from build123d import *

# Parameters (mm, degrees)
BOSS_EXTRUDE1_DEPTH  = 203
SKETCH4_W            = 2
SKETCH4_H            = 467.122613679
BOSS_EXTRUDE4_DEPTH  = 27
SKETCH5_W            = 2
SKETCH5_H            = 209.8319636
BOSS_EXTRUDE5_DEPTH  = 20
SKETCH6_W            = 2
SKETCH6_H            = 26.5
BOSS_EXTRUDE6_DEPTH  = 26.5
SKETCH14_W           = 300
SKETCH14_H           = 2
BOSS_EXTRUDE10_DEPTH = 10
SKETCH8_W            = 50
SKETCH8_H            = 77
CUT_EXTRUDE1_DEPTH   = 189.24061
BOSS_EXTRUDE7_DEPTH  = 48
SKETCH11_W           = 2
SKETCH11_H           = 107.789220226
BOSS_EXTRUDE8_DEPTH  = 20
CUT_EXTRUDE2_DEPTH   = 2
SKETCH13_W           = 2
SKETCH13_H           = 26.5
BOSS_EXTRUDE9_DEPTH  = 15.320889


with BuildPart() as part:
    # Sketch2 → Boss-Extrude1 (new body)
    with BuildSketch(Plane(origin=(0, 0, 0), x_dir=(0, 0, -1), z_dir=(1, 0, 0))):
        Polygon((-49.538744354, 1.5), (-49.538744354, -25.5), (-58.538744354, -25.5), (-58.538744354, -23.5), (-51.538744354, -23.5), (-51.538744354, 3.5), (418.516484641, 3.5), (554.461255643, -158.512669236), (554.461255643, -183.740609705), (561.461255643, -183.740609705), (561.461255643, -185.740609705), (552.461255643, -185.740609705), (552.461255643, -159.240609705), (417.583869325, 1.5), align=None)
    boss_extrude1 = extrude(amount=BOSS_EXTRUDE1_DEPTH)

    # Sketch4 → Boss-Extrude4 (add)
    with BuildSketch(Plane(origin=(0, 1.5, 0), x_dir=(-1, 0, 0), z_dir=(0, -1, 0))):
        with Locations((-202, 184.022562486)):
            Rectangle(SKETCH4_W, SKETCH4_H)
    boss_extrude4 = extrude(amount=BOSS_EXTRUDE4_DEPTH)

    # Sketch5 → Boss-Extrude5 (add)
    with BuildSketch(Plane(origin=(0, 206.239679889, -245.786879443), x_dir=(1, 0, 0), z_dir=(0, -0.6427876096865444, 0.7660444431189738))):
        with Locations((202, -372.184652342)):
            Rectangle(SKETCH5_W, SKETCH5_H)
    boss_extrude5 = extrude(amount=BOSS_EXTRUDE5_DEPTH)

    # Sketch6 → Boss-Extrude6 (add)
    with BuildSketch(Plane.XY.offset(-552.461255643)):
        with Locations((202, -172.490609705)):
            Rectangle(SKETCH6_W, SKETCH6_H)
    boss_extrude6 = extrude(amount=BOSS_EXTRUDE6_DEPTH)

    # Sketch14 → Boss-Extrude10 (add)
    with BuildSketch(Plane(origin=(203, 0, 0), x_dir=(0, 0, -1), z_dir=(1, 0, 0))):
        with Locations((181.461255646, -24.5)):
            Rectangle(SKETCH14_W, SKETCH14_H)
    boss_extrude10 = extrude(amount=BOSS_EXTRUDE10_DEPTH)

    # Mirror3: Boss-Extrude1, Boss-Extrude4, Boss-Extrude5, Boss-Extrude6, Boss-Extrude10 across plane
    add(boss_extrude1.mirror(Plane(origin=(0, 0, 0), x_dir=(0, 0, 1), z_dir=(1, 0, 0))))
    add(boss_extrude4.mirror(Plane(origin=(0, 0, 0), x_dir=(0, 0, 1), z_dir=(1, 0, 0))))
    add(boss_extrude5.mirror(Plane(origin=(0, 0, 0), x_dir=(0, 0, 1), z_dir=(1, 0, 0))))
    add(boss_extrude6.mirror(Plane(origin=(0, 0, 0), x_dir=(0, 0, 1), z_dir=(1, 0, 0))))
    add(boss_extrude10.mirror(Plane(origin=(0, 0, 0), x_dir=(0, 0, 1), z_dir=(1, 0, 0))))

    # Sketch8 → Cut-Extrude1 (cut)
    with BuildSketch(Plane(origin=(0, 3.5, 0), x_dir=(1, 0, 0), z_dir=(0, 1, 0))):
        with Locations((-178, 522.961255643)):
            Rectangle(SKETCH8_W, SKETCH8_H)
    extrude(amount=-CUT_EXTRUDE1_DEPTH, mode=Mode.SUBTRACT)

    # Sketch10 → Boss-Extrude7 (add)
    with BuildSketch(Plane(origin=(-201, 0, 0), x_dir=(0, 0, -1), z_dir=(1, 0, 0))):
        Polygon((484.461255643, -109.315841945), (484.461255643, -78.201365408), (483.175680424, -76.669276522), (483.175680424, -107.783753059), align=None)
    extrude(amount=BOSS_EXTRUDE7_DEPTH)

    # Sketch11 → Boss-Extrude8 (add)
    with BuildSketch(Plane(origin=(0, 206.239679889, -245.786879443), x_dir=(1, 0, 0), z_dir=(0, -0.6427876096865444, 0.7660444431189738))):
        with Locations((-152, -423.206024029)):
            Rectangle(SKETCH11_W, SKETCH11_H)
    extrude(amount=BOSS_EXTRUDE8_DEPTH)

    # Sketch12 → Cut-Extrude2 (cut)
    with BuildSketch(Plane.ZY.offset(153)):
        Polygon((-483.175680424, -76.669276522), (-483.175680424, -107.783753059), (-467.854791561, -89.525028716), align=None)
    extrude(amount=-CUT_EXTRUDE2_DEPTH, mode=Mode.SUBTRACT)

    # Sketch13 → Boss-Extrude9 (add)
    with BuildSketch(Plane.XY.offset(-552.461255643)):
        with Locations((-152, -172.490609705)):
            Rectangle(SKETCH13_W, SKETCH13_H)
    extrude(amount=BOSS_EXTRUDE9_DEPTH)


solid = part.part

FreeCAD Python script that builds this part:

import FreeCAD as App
import Part
import Sketcher
from FreeCAD import Vector
Q = App.Units.Quantity

doc = App.newDocument("Part")
body = doc.addObject("PartDesign::Body", "Body")

# Sketch on YZ plane
sketch1 = doc.addObject("Sketcher::SketchObject", "Sketch")
body.addObject(sketch1)
sketch1.AttachmentSupport = (doc.YZ_Plane, [""])
sketch1.MapMode = "FlatFace"
sketch1.addGeometry(Part.LineSegment(Vector(-25.5, 49.5, 0), Vector(1.5, 49.5, 0)), False)
sketch1.addGeometry(Part.LineSegment(Vector(1.5, 49.5, 0), Vector(1.5, -417.6, 0)), False)
sketch1.addGeometry(Part.LineSegment(Vector(1.5, -417.6, 0), Vector(-159.2, -552.5, 0)), False)
sketch1.addGeometry(Part.LineSegment(Vector(-159.2, -552.5, 0), Vector(-185.7, -552.5, 0)), False)
sketch1.addGeometry(Part.LineSegment(Vector(-185.7, -552.5, 0), Vector(-185.7, -561.5, 0)), False)
sketch1.addGeometry(Part.LineSegment(Vector(-185.7, -561.5, 0), Vector(-183.7, -561.5, 0)), False)
sketch1.addGeometry(Part.LineSegment(Vector(-183.7, -561.5, 0), Vector(-183.7, -554.5, 0)), False)
sketch1.addGeometry(Part.LineSegment(Vector(-183.7, -554.5, 0), Vector(-158.5, -554.5, 0)), False)
sketch1.addGeometry(Part.LineSegment(Vector(-158.5, -554.5, 0), Vector(3.5, -418.5, 0)), False)
sketch1.addGeometry(Part.LineSegment(Vector(3.5, -418.5, 0), Vector(3.5, 51.5, 0)), False)
sketch1.addGeometry(Part.LineSegment(Vector(3.5, 51.5, 0), Vector(-23.5, 51.5, 0)), False)
sketch1.addGeometry(Part.LineSegment(Vector(-23.5, 51.5, 0), Vector(-23.5, 58.5, 0)), False)
sketch1.addGeometry(Part.LineSegment(Vector(-23.5, 58.5, 0), Vector(-25.5, 58.5, 0)), False)
sketch1.addGeometry(Part.LineSegment(Vector(-25.5, 58.5, 0), Vector(-25.5, 49.5, 0)), False)
sketch1.addConstraint(Sketcher.Constraint("Coincident", 0, 2, 1, 1))
sketch1.addConstraint(Sketcher.Constraint("Coincident", 1, 2, 2, 1))
sketch1.addConstraint(Sketcher.Constraint("Coincident", 2, 2, 3, 1))
sketch1.addConstraint(Sketcher.Constraint("Coincident", 3, 2, 4, 1))
sketch1.addConstraint(Sketcher.Constraint("Coincident", 4, 2, 5, 1))
sketch1.addConstraint(Sketcher.Constraint("Coincident", 5, 2, 6, 1))
sketch1.addConstraint(Sketcher.Constraint("Coincident", 6, 2, 7, 1))
sketch1.addConstraint(Sketcher.Constraint("Coincident", 7, 2, 8, 1))
sketch1.addConstraint(Sketcher.Constraint("Coincident", 8, 2, 9, 1))
sketch1.addConstraint(Sketcher.Constraint("Coincident", 9, 2, 10, 1))
sketch1.addConstraint(Sketcher.Constraint("Coincident", 10, 2, 11, 1))
sketch1.addConstraint(Sketcher.Constraint("Coincident", 11, 2, 12, 1))
sketch1.addConstraint(Sketcher.Constraint("Coincident", 12, 2, 13, 1))
sketch1.addConstraint(Sketcher.Constraint("Coincident", 13, 2, 0, 1))
sketch1.addConstraint(Sketcher.Constraint("Horizontal", 0))
sketch1.addConstraint(Sketcher.Constraint("Vertical", 1))
sketch1.addConstraint(Sketcher.Constraint("Horizontal", 3))
sketch1.addConstraint(Sketcher.Constraint("Vertical", 4))
sketch1.addConstraint(Sketcher.Constraint("Horizontal", 5))
sketch1.addConstraint(Sketcher.Constraint("Vertical", 6))
sketch1.addConstraint(Sketcher.Constraint("Horizontal", 7))
sketch1.addConstraint(Sketcher.Constraint("Vertical", 9))
sketch1.addConstraint(Sketcher.Constraint("Horizontal", 10))
sketch1.addConstraint(Sketcher.Constraint("Vertical", 11))
sketch1.addConstraint(Sketcher.Constraint("Horizontal", 12))
sketch1.addConstraint(Sketcher.Constraint("Vertical", 13))
sketch1.addConstraint(Sketcher.Constraint("Parallel", 2, 8))
sketch1.addConstraint(Sketcher.Constraint("Equal", 0, 10))
sketch1.addConstraint(Sketcher.Constraint("Equal", 5, 12))
sketch1.addConstraint(Sketcher.Constraint("Equal", 6, 11))
sketch1.addConstraint(Sketcher.Constraint("Equal", 4, 13))
sketch1.addConstraint(Sketcher.Constraint("DistanceX", 0, 1, 0, 2, 27.0))
sketch1.addConstraint(Sketcher.Constraint("DistanceX", 5, 1, 5, 2, 2.0))
sketch1.addConstraint(Sketcher.Constraint("DistanceY", 4, 2, 4, 1, 9.0))
sketch1.addConstraint(Sketcher.Constraint("DistanceY", 6, 1, 6, 2, 7.0))
sketch1.addConstraint(Sketcher.Constraint("Angle", 2, Q("-140 deg")))
sketch1.addConstraint(Sketcher.Constraint("DistanceX", 3, 2, 3, 1, 26.5))
sketch1.addConstraint(Sketcher.Constraint("DistanceY", 2, 2, 0, 2, 602.0))
sketch1.addConstraint(Sketcher.Constraint("DistanceX", -1, 1, 0, 2, 1.5))
sketch1.addConstraint(Sketcher.Constraint("DistanceX", 7, 1, 7, 2, 25.22794))
sketch1.addConstraint(Sketcher.Constraint("DistanceY", 9, 1, 9, 2, 470.055229))
sketch1.addConstraint(Sketcher.Constraint("DistanceY", 1, 2, -1, 1, 417.583869))
pad1 = doc.addObject("PartDesign::Pad", "Pad")
body.addObject(pad1)
pad1.Profile = sketch1
pad1.Length = 203

# Sketch on XZ plane
sketch2 = doc.addObject("Sketcher::SketchObject", "Sketch001")
body.addObject(sketch2)
sketch2.AttachmentSupport = (doc.XZ_Plane, [""])
sketch2.MapMode = "FlatFace"
sketch2.AttachmentOffset = App.Placement(Vector(0, 0, -1.5), App.Rotation())
sketch2.addGeometry(Part.LineSegment(Vector(203, -417.6, 0), Vector(203, 49.5, 0)), False)
sketch2.addGeometry(Part.LineSegment(Vector(203, 49.5, 0), Vector(201, 49.5, 0)), False)
sketch2.addGeometry(Part.LineSegment(Vector(201, 49.5, 0), Vector(201, -417.6, 0)), False)
sketch2.addGeometry(Part.LineSegment(Vector(201, -417.6, 0), Vector(203, -417.6, 0)), False)
sketch2.addConstraint(Sketcher.Constraint("Coincident", 0, 2, 1, 1))
sketch2.addConstraint(Sketcher.Constraint("Coincident", 1, 2, 2, 1))
sketch2.addConstraint(Sketcher.Constraint("Coincident", 2, 2, 3, 1))
sketch2.addConstraint(Sketcher.Constraint("Coincident", 3, 2, 0, 1))
sketch2.addConstraint(Sketcher.Constraint("Vertical", 0))
sketch2.addConstraint(Sketcher.Constraint("Horizontal", 1))
sketch2.addConstraint(Sketcher.Constraint("Vertical", 2))
sketch2.addConstraint(Sketcher.Constraint("Horizontal", 3))
sketch2.addConstraint(Sketcher.Constraint("DistanceX", 1, 2, 1, 1, 2.0))
sketch2.addConstraint(Sketcher.Constraint("DistanceX", -1, 1, 0, 2, 203.0))
sketch2.addConstraint(Sketcher.Constraint("DistanceY", 0, 1, 0, 2, 467.122614))
sketch2.addConstraint(Sketcher.Constraint("DistanceY", 2, 2, -1, 1, 417.583869))
pad2 = doc.addObject("PartDesign::Pad", "Pad001")
body.addObject(pad2)
pad2.Profile = sketch2
pad2.Length = 27

# Sketch on an angled plane
sketch3 = doc.addObject("Sketcher::SketchObject", "Sketch002")
body.addObject(sketch3)
sketch3.Placement = App.Placement(Vector(0, 206.23968, -245.786879), App.Rotation(Vector(1, 0, 0), Vector(0, 0.766044443, 0.64278761), Vector(0, -0.64278761, 0.766044443), "ZXY"))
sketch3.addGeometry(Part.LineSegment(Vector(201, -267.3, 0), Vector(201, -477.1, 0)), False)
sketch3.addGeometry(Part.LineSegment(Vector(201, -477.1, 0), Vector(203, -477.1, 0)), False)
sketch3.addGeometry(Part.LineSegment(Vector(203, -477.1, 0), Vector(203, -267.3, 0)), False)
sketch3.addGeometry(Part.LineSegment(Vector(203, -267.3, 0), Vector(201, -267.3, 0)), False)
sketch3.addConstraint(Sketcher.Constraint("Coincident", 0, 2, 1, 1))
sketch3.addConstraint(Sketcher.Constraint("Coincident", 1, 2, 2, 1))
sketch3.addConstraint(Sketcher.Constraint("Coincident", 2, 2, 3, 1))
sketch3.addConstraint(Sketcher.Constraint("Coincident", 3, 2, 0, 1))
sketch3.addConstraint(Sketcher.Constraint("Vertical", 0))
sketch3.addConstraint(Sketcher.Constraint("Horizontal", 1))
sketch3.addConstraint(Sketcher.Constraint("Vertical", 2))
sketch3.addConstraint(Sketcher.Constraint("Horizontal", 3))
sketch3.addConstraint(Sketcher.Constraint("DistanceX", 1, 1, 1, 2, 2.0))
sketch3.addConstraint(Sketcher.Constraint("DistanceX", -1, 1, 0, 2, 201.0))
sketch3.addConstraint(Sketcher.Constraint("DistanceY", 0, 2, 0, 1, 209.831964))
sketch3.addConstraint(Sketcher.Constraint("DistanceY", 2, 2, -1, 1, 267.268671))
pad3 = doc.addObject("PartDesign::Pad", "Pad002")
body.addObject(pad3)
pad3.Profile = sketch3
pad3.Length = 20

# Sketch on XY plane
sketch4 = doc.addObject("Sketcher::SketchObject", "Sketch003")
body.addObject(sketch4)
sketch4.AttachmentSupport = (doc.XY_Plane, [""])
sketch4.MapMode = "FlatFace"
sketch4.AttachmentOffset = App.Placement(Vector(0, 0, -552.461256), App.Rotation())
sketch4.addGeometry(Part.LineSegment(Vector(201, -159.2, 0), Vector(201, -185.7, 0)), False)
sketch4.addGeometry(Part.LineSegment(Vector(201, -185.7, 0), Vector(203, -185.7, 0)), False)
sketch4.addGeometry(Part.LineSegment(Vector(203, -185.7, 0), Vector(203, -159.2, 0)), False)
sketch4.addGeometry(Part.LineSegment(Vector(203, -159.2, 0), Vector(201, -159.2, 0)), False)
sketch4.addConstraint(Sketcher.Constraint("Coincident", 0, 2, 1, 1))
sketch4.addConstraint(Sketcher.Constraint("Coincident", 1, 2, 2, 1))
sketch4.addConstraint(Sketcher.Constraint("Coincident", 2, 2, 3, 1))
sketch4.addConstraint(Sketcher.Constraint("Coincident", 3, 2, 0, 1))
sketch4.addConstraint(Sketcher.Constraint("Vertical", 0))
sketch4.addConstraint(Sketcher.Constraint("Horizontal", 1))
sketch4.addConstraint(Sketcher.Constraint("Vertical", 2))
sketch4.addConstraint(Sketcher.Constraint("Horizontal", 3))
sketch4.addConstraint(Sketcher.Constraint("DistanceX", 1, 1, 1, 2, 2.0))
sketch4.addConstraint(Sketcher.Constraint("DistanceY", 0, 2, 0, 1, 26.5))
sketch4.addConstraint(Sketcher.Constraint("DistanceX", -1, 1, 0, 2, 201.0))
sketch4.addConstraint(Sketcher.Constraint("DistanceY", 0, 2, -1, 1, 185.74061))
pad4 = doc.addObject("PartDesign::Pad", "Pad003")
body.addObject(pad4)
pad4.Profile = sketch4
pad4.Length = 26.5

# Sketch on YZ plane
sketch5 = doc.addObject("Sketcher::SketchObject", "Sketch004")
body.addObject(sketch5)
sketch5.AttachmentSupport = (doc.YZ_Plane, [""])
sketch5.MapMode = "FlatFace"
sketch5.AttachmentOffset = App.Placement(Vector(0, 0, 203), App.Rotation())
sketch5.addGeometry(Part.LineSegment(Vector(-23.5, -31.5, 0), Vector(-25.5, -31.5, 0)), False)
sketch5.addGeometry(Part.LineSegment(Vector(-25.5, -31.5, 0), Vector(-25.5, -331.5, 0)), False)
sketch5.addGeometry(Part.LineSegment(Vector(-25.5, -331.5, 0), Vector(-23.5, -331.5, 0)), False)
sketch5.addGeometry(Part.LineSegment(Vector(-23.5, -331.5, 0), Vector(-23.5, -31.5, 0)), False)
sketch5.addConstraint(Sketcher.Constraint("Coincident", 0, 2, 1, 1))
sketch5.addConstraint(Sketcher.Constraint("Coincident", 1, 2, 2, 1))
sketch5.addConstraint(Sketcher.Constraint("Coincident", 2, 2, 3, 1))
sketch5.addConstraint(Sketcher.Constraint("Coincident", 3, 2, 0, 1))
sketch5.addConstraint(Sketcher.Constraint("Horizontal", 0))
sketch5.addConstraint(Sketcher.Constraint("Vertical", 1))
sketch5.addConstraint(Sketcher.Constraint("Horizontal", 2))
sketch5.addConstraint(Sketcher.Constraint("Vertical", 3))
sketch5.addConstraint(Sketcher.Constraint("DistanceX", 0, 2, 0, 1, 2.0))
sketch5.addConstraint(Sketcher.Constraint("DistanceY", 1, 2, 1, 1, 300.0))
sketch5.addConstraint(Sketcher.Constraint("DistanceX", 0, 2, -1, 1, 25.5))
sketch5.addConstraint(Sketcher.Constraint("DistanceY", 0, 2, -1, 1, 31.461256))
pad5 = doc.addObject("PartDesign::Pad", "Pad004")
body.addObject(pad5)
pad5.Profile = sketch5
pad5.Length = 10
doc.recompute()

mirrored = doc.addObject("PartDesign::Mirrored", "Mirrored")
body.addObject(mirrored)
mirrored.Originals = [pad1, pad2, pad3, pad4, pad5]
mirrored.MirrorPlane = (doc.YZ_Plane, [""])
body.Tip = mirrored

# Sketch on XZ plane
sketch6 = doc.addObject("Sketcher::SketchObject", "Sketch005")
body.addObject(sketch6)
sketch6.AttachmentSupport = (doc.XZ_Plane, [""])
sketch6.MapMode = "FlatFace"
sketch6.AttachmentOffset = App.Placement(Vector(0, 0, -3.5), App.Rotation())
sketch6.addGeometry(Part.LineSegment(Vector(-203, -561, 0), Vector(-203, -484, 0)), False)
sketch6.addGeometry(Part.LineSegment(Vector(-203, -484, 0), Vector(-153, -484, 0)), False)
sketch6.addGeometry(Part.LineSegment(Vector(-153, -484, 0), Vector(-153, -561, 0)), False)
sketch6.addGeometry(Part.LineSegment(Vector(-153, -561, 0), Vector(-203, -561, 0)), False)
sketch6.addConstraint(Sketcher.Constraint("Coincident", 0, 2, 1, 1))
sketch6.addConstraint(Sketcher.Constraint("Coincident", 1, 2, 2, 1))
sketch6.addConstraint(Sketcher.Constraint("Coincident", 2, 2, 3, 1))
sketch6.addConstraint(Sketcher.Constraint("Coincident", 3, 2, 0, 1))
sketch6.addConstraint(Sketcher.Constraint("Vertical", 0))
sketch6.addConstraint(Sketcher.Constraint("Horizontal", 1))
sketch6.addConstraint(Sketcher.Constraint("Vertical", 2))
sketch6.addConstraint(Sketcher.Constraint("Horizontal", 3))
sketch6.addConstraint(Sketcher.Constraint("DistanceX", 1, 1, 1, 2, 50.0))
sketch6.addConstraint(Sketcher.Constraint("DistanceY", 0, 1, 0, 2, 77.0))
sketch6.addConstraint(Sketcher.Constraint("DistanceX", 0, 2, -1, 1, 203.0))
sketch6.addConstraint(Sketcher.Constraint("DistanceY", 0, 2, -1, 1, 484.461256))
pocket1 = doc.addObject("PartDesign::Pocket", "Pocket")
body.addObject(pocket1)
pocket1.Profile = sketch6
pocket1.Length = 189.24061
pocket1.Reversed = True

# Sketch on YZ plane
sketch7 = doc.addObject("Sketcher::SketchObject", "Sketch006")
body.addObject(sketch7)
sketch7.AttachmentSupport = (doc.YZ_Plane, [""])
sketch7.MapMode = "FlatFace"
sketch7.AttachmentOffset = App.Placement(Vector(0, 0, -201), App.Rotation())
sketch7.addGeometry(Part.LineSegment(Vector(-109.3, -484.5, 0), Vector(-78.2, -484.5, 0)), False)
sketch7.addGeometry(Part.LineSegment(Vector(-78.2, -484.5, 0), Vector(-76.7, -483.2, 0)), False)
sketch7.addGeometry(Part.LineSegment(Vector(-76.7, -483.2, 0), Vector(-107.8, -483.2, 0)), False)
sketch7.addGeometry(Part.LineSegment(Vector(-107.8, -483.2, 0), Vector(-109.3, -484.5, 0)), False)
sketch7.addConstraint(Sketcher.Constraint("Coincident", 0, 2, 1, 1))
sketch7.addConstraint(Sketcher.Constraint("Coincident", 1, 2, 2, 1))
sketch7.addConstraint(Sketcher.Constraint("Coincident", 2, 2, 3, 1))
sketch7.addConstraint(Sketcher.Constraint("Coincident", 3, 2, 0, 1))
sketch7.addConstraint(Sketcher.Constraint("Horizontal", 0))
sketch7.addConstraint(Sketcher.Constraint("Horizontal", 2))
sketch7.addConstraint(Sketcher.Constraint("Parallel", 1, 3))
sketch7.addConstraint(Sketcher.Constraint("Angle", 1, Q("40 deg")))
sketch7.addConstraint(Sketcher.Constraint("Distance", 1, 2.0))
sketch7.addConstraint(Sketcher.Constraint("DistanceX", 0, 1, 0, 2, 31.114477))
sketch7.addConstraint(Sketcher.Constraint("DistanceY", 1, 2, -1, 1, 483.17568))
sketch7.addConstraint(Sketcher.Constraint("DistanceX", 3, 2, -1, 1, 109.315842))
pad6 = doc.addObject("PartDesign::Pad", "Pad005")
body.addObject(pad6)
pad6.Profile = sketch7
pad6.Length = 48

# Sketch on an angled plane
sketch8 = doc.addObject("Sketcher::SketchObject", "Sketch007")
body.addObject(sketch8)
sketch8.Placement = App.Placement(Vector(0, 206.23968, -245.786879), App.Rotation(Vector(1, 0, 0), Vector(0, 0.766044443, 0.64278761), Vector(0, -0.64278761, 0.766044443), "ZXY"))
sketch8.addGeometry(Part.LineSegment(Vector(-153, -369.3, 0), Vector(-153, -477.1, 0)), False)
sketch8.addGeometry(Part.LineSegment(Vector(-153, -477.1, 0), Vector(-151, -477.1, 0)), False)
sketch8.addGeometry(Part.LineSegment(Vector(-151, -477.1, 0), Vector(-151, -369.3, 0)), False)
sketch8.addGeometry(Part.LineSegment(Vector(-151, -369.3, 0), Vector(-153, -369.3, 0)), False)
sketch8.addConstraint(Sketcher.Constraint("Coincident", 0, 2, 1, 1))
sketch8.addConstraint(Sketcher.Constraint("Coincident", 1, 2, 2, 1))
sketch8.addConstraint(Sketcher.Constraint("Coincident", 2, 2, 3, 1))
sketch8.addConstraint(Sketcher.Constraint("Coincident", 3, 2, 0, 1))
sketch8.addConstraint(Sketcher.Constraint("Vertical", 0))
sketch8.addConstraint(Sketcher.Constraint("Horizontal", 1))
sketch8.addConstraint(Sketcher.Constraint("Vertical", 2))
sketch8.addConstraint(Sketcher.Constraint("Horizontal", 3))
sketch8.addConstraint(Sketcher.Constraint("DistanceX", 1, 1, 1, 2, 2.0))
sketch8.addConstraint(Sketcher.Constraint("DistanceX", 0, 2, -1, 1, 153.0))
sketch8.addConstraint(Sketcher.Constraint("DistanceY", 0, 2, 0, 1, 107.78922))
sketch8.addConstraint(Sketcher.Constraint("DistanceY", 0, 2, -1, 1, 477.100634))
pad7 = doc.addObject("PartDesign::Pad", "Pad006")
body.addObject(pad7)
pad7.Profile = sketch8
pad7.Length = 20

# Sketch on YZ plane
sketch9 = doc.addObject("Sketcher::SketchObject", "Sketch008")
body.addObject(sketch9)
sketch9.AttachmentSupport = (doc.YZ_Plane, [""])
sketch9.MapMode = "FlatFace"
sketch9.AttachmentOffset = App.Placement(Vector(0, 0, -153), App.Rotation())
sketch9.addGeometry(Part.LineSegment(Vector(-77, -483, 0), Vector(-108, -483, 0)), False)
sketch9.addGeometry(Part.LineSegment(Vector(-108, -483, 0), Vector(-90, -468, 0)), False)
sketch9.addGeometry(Part.LineSegment(Vector(-90, -468, 0), Vector(-77, -483, 0)), False)
sketch9.addConstraint(Sketcher.Constraint("Coincident", 0, 2, 1, 1))
sketch9.addConstraint(Sketcher.Constraint("Coincident", 1, 2, 2, 1))
sketch9.addConstraint(Sketcher.Constraint("Coincident", 2, 2, 0, 1))
sketch9.addConstraint(Sketcher.Constraint("Horizontal", 0))
sketch9.addConstraint(Sketcher.Constraint("Perpendicular", 1, 2))
sketch9.addConstraint(Sketcher.Constraint("Angle", 1, Q("40 deg")))
sketch9.addConstraint(Sketcher.Constraint("Distance", 2, 20.0))
sketch9.addConstraint(Sketcher.Constraint("DistanceY", 0, 2, -1, 1, 483.17568))
sketch9.addConstraint(Sketcher.Constraint("DistanceX", 1, 2, -1, 1, 89.525029))
pocket2 = doc.addObject("PartDesign::Pocket", "Pocket001")
body.addObject(pocket2)
pocket2.Profile = sketch9
pocket2.Length = 2
pocket2.Reversed = True

# Sketch on XY plane
sketch10 = doc.addObject("Sketcher::SketchObject", "Sketch009")
body.addObject(sketch10)
sketch10.AttachmentSupport = (doc.XY_Plane, [""])
sketch10.MapMode = "FlatFace"
sketch10.AttachmentOffset = App.Placement(Vector(0, 0, -552.461256), App.Rotation())
sketch10.addGeometry(Part.LineSegment(Vector(-153, -159.2, 0), Vector(-153, -185.7, 0)), False)
sketch10.addGeometry(Part.LineSegment(Vector(-153, -185.7, 0), Vector(-151, -185.7, 0)), False)
sketch10.addGeometry(Part.LineSegment(Vector(-151, -185.7, 0), Vector(-151, -159.2, 0)), False)
sketch10.addGeometry(Part.LineSegment(Vector(-151, -159.2, 0), Vector(-153, -159.2, 0)), False)
sketch10.addConstraint(Sketcher.Constraint("Coincident", 0, 2, 1, 1))
sketch10.addConstraint(Sketcher.Constraint("Coincident", 1, 2, 2, 1))
sketch10.addConstraint(Sketcher.Constraint("Coincident", 2, 2, 3, 1))
sketch10.addConstraint(Sketcher.Constraint("Coincident", 3, 2, 0, 1))
sketch10.addConstraint(Sketcher.Constraint("Vertical", 0))
sketch10.addConstraint(Sketcher.Constraint("Horizontal", 1))
sketch10.addConstraint(Sketcher.Constraint("Vertical", 2))
sketch10.addConstraint(Sketcher.Constraint("Horizontal", 3))
sketch10.addConstraint(Sketcher.Constraint("DistanceX", 1, 1, 1, 2, 2.0))
sketch10.addConstraint(Sketcher.Constraint("DistanceY", 0, 2, 0, 1, 26.5))
sketch10.addConstraint(Sketcher.Constraint("DistanceX", 0, 2, -1, 1, 153.0))
sketch10.addConstraint(Sketcher.Constraint("DistanceY", 0, 2, -1, 1, 185.74061))
pad8 = doc.addObject("PartDesign::Pad", "Pad007")
body.addObject(pad8)
pad8.Profile = sketch10
pad8.Length = 15.320889

doc.recompute()
